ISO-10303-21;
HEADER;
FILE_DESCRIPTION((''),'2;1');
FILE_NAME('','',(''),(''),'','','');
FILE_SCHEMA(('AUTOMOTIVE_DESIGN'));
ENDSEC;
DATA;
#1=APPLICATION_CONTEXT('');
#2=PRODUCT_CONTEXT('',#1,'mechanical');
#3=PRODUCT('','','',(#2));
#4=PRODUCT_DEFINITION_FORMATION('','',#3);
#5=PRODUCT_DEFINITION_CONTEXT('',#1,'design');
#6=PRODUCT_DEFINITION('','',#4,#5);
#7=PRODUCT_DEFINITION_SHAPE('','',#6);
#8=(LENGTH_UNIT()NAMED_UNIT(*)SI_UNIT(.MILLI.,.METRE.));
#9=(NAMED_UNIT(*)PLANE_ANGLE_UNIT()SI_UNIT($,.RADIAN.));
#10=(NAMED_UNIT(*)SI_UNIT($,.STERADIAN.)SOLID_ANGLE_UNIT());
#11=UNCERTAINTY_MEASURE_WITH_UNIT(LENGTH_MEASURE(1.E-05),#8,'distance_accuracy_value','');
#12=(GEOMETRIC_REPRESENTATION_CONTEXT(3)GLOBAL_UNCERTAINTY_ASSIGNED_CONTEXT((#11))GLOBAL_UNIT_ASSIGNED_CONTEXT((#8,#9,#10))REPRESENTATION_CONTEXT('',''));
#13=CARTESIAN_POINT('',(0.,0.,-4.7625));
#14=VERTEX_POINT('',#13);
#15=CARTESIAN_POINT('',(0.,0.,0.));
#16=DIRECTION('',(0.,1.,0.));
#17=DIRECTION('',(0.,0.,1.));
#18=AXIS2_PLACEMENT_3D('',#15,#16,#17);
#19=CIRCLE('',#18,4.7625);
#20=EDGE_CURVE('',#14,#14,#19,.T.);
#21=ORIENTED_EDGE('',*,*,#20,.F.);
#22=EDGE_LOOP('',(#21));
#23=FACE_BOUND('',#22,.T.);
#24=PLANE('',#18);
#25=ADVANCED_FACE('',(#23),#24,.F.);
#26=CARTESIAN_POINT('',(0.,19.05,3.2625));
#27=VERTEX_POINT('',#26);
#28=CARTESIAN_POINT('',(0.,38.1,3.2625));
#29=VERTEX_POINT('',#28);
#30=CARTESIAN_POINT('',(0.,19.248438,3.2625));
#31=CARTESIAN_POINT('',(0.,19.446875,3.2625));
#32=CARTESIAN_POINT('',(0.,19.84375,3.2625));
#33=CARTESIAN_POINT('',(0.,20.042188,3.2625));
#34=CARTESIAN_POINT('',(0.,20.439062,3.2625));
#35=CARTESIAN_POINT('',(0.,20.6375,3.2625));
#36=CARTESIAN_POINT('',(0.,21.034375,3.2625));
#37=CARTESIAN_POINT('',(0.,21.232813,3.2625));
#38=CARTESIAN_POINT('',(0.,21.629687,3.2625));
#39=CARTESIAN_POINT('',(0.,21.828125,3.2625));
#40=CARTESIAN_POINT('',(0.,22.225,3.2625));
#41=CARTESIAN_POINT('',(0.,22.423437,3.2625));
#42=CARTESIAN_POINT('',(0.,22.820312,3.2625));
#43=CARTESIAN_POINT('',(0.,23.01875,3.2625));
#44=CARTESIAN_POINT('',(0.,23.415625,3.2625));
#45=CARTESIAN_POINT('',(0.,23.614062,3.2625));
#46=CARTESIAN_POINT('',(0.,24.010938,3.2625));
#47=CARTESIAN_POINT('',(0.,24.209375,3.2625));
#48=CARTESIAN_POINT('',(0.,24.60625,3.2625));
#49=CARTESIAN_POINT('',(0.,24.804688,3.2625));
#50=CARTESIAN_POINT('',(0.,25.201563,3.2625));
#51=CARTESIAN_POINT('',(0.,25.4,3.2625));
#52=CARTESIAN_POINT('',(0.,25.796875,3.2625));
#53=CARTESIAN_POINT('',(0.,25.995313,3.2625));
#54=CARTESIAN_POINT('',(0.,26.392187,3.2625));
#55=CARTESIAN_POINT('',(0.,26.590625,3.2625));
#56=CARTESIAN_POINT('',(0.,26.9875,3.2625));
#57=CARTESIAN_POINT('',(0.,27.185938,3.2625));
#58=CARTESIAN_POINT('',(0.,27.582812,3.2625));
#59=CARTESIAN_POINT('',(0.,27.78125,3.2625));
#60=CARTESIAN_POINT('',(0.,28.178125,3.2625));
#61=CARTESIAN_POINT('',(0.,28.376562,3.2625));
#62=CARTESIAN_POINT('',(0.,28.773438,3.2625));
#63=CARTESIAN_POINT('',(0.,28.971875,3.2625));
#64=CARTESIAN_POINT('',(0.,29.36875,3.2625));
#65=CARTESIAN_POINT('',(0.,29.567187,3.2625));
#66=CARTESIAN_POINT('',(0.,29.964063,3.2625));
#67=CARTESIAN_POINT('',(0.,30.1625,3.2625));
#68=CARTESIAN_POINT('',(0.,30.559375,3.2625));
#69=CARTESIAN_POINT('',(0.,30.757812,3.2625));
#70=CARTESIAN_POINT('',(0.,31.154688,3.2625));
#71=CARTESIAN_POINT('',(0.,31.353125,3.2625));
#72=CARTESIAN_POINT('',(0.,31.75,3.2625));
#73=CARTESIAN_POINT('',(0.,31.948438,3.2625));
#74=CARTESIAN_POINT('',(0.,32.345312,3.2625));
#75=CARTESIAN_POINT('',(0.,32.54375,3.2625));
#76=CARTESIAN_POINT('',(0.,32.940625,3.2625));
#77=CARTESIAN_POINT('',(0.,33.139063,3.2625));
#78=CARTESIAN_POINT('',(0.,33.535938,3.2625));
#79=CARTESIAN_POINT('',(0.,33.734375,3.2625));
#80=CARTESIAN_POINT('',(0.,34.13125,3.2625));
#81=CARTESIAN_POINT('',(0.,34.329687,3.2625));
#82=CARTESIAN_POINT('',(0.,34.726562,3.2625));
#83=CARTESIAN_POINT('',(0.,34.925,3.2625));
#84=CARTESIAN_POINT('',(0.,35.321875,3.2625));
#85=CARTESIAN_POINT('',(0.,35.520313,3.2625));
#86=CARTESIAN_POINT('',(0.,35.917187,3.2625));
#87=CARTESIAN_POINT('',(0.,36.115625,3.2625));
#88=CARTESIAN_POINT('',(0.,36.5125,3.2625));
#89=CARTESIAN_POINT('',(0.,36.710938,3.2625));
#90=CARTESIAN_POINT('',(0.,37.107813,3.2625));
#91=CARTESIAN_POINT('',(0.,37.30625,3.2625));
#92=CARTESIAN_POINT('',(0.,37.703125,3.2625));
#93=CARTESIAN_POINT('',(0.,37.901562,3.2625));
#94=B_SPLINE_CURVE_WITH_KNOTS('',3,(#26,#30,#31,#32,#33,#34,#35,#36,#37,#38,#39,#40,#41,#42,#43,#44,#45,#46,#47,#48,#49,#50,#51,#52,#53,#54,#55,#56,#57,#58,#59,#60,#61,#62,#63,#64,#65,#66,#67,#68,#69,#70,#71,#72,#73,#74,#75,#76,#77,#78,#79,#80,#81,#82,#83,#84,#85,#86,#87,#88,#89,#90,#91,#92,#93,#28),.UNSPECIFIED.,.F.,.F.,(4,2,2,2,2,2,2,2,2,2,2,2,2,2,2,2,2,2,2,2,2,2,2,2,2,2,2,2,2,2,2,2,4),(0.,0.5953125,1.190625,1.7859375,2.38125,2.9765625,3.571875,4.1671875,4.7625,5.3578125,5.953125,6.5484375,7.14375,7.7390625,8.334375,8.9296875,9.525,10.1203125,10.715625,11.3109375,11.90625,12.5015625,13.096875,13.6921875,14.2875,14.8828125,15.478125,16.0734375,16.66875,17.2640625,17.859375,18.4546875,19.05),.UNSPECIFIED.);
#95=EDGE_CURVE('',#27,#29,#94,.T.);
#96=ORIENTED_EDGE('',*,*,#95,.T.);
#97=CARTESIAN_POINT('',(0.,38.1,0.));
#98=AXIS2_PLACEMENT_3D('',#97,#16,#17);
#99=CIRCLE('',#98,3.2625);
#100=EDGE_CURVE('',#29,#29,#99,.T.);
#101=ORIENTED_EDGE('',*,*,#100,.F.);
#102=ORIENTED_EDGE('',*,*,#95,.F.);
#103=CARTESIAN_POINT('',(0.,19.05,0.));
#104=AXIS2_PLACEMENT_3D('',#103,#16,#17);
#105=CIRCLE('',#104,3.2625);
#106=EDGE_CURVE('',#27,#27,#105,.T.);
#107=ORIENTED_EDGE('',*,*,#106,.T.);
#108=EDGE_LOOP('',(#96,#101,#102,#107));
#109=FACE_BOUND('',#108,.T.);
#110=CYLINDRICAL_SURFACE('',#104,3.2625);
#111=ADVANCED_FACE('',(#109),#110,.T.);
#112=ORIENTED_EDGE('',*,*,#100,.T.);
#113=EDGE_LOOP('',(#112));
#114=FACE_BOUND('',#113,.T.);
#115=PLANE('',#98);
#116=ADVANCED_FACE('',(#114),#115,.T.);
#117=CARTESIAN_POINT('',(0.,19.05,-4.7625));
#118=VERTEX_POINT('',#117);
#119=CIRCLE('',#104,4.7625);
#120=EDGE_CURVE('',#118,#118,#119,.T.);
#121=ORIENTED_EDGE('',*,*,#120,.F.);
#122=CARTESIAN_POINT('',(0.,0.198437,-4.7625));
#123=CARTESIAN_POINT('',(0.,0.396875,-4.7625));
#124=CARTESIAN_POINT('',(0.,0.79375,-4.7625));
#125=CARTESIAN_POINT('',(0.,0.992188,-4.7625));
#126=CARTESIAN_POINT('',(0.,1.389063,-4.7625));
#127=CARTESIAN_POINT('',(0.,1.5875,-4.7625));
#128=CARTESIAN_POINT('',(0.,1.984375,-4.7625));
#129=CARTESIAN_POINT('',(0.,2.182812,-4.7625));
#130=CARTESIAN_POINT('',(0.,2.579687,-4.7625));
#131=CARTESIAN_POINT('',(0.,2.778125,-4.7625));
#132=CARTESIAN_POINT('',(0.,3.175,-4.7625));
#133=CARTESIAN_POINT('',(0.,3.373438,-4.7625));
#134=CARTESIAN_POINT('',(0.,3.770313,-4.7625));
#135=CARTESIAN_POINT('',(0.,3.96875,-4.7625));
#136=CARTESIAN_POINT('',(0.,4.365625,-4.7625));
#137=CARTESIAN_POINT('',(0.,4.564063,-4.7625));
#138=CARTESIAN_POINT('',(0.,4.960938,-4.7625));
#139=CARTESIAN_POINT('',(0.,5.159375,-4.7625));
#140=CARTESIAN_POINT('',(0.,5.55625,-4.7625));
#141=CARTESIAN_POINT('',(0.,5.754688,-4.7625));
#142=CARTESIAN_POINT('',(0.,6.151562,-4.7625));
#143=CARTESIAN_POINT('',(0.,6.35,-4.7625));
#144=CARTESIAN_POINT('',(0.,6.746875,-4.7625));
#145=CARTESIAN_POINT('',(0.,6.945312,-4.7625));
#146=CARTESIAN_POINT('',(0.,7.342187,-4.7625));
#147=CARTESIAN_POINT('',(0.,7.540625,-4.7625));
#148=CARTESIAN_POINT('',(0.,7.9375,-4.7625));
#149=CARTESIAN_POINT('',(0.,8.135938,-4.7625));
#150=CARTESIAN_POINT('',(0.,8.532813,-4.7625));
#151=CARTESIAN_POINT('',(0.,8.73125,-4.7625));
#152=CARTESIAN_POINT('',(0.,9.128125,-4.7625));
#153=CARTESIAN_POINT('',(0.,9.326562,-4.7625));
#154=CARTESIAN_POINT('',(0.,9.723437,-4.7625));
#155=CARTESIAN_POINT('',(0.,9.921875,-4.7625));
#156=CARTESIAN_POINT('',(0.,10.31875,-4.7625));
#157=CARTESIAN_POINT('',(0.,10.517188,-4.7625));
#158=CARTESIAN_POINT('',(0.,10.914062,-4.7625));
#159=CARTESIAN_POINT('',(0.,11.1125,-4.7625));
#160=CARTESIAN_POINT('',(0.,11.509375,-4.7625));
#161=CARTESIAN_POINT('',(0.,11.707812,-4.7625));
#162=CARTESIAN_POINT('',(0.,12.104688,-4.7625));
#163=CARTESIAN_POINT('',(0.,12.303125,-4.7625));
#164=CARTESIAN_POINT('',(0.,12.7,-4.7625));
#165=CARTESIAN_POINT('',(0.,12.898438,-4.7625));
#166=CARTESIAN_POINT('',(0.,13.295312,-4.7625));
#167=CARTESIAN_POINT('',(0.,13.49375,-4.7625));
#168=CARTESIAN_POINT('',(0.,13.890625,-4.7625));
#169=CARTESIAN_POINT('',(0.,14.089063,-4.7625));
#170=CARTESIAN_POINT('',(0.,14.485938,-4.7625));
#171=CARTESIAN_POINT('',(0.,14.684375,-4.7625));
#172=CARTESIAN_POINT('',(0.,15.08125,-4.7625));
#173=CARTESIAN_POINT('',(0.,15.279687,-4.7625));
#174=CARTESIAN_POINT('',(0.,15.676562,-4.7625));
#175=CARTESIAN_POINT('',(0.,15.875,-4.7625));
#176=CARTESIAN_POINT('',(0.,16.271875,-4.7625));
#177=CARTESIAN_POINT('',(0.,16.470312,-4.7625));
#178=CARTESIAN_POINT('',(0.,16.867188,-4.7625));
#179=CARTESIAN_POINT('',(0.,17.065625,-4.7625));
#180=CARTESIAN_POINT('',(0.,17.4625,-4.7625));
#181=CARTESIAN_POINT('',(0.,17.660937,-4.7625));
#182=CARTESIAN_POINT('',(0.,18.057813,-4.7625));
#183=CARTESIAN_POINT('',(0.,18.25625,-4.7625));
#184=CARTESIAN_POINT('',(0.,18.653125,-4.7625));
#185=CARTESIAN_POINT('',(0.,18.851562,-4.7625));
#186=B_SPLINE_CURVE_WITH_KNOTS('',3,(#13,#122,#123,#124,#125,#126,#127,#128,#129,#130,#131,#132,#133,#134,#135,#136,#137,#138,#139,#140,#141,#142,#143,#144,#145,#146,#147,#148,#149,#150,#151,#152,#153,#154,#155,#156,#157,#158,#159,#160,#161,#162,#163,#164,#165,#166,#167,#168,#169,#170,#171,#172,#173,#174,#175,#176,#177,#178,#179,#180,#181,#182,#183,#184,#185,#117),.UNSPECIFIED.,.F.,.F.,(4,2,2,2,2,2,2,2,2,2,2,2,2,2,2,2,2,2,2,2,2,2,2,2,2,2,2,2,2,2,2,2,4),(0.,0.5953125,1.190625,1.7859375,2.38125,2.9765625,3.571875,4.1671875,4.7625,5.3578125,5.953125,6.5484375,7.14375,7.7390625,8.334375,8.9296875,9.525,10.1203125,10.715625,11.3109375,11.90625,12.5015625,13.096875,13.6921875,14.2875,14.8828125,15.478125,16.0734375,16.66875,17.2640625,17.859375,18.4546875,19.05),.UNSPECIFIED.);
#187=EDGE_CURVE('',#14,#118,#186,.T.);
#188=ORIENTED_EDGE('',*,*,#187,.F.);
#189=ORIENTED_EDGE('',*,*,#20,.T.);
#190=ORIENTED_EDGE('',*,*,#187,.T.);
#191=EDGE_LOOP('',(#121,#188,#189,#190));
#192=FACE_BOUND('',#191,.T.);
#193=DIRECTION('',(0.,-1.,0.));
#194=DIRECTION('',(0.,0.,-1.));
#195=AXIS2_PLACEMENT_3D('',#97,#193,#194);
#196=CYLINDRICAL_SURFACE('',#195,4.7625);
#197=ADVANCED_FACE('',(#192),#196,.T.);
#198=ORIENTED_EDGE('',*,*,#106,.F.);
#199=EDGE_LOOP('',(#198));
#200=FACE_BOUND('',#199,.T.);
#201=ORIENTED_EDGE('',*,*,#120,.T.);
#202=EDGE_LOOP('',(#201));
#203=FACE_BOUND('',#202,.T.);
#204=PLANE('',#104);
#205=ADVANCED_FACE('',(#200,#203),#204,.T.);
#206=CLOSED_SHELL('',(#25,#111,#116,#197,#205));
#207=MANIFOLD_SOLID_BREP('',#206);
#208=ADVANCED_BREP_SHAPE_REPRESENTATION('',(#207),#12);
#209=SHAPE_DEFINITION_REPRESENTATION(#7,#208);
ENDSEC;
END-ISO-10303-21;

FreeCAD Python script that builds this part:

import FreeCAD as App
import Part
import Sketcher
Q = App.Units.Quantity

doc = App.newDocument("Part")
body = doc.addObject("PartDesign::Body", "Body")

sketch1 = body.newObject("Sketcher::SketchObject", "Sketch")
sketch1.AttachmentSupport = (doc.getObject("XZ_Plane"), [""])
sketch1.MapMode = "FlatFace"
sketch1.addGeometry(Part.Circle(App.Vector(0, 0, 0), App.Vector(0, 0, 1), 4.8), False)
sketch1.addConstraint(Sketcher.Constraint("Coincident", 0, 3, -1, 1))
sketch1.addConstraint(Sketcher.Constraint("Diameter", 0, Q("0.375 in")))
pad1 = body.newObject("PartDesign::Pad", "Pad")
pad1.Profile = sketch1
pad1.Length = Q("1.5 in")
pad1.Reversed = True

sketch2 = body.newObject("Sketcher::SketchObject", "Sketch001")
sketch2.AttachmentSupport = (doc.getObject("XZ_Plane"), [""])
sketch2.MapMode = "FlatFace"
sketch2.AttachmentOffset = App.Placement(App.Vector(0, 0, -1.5 * 25.4), App.Rotation())
sketch2.addGeometry(Part.Circle(App.Vector(0, 0, 0), App.Vector(0, 0, 1), 5.6), False)
sketch2.addGeometry(Part.Circle(App.Vector(0, 0, 0), App.Vector(0, 0, 1), 3.3), False)
sketch2.addConstraint(Sketcher.Constraint("Coincident", 0, 3, -1, 1))
sketch2.addConstraint(Sketcher.Constraint("Coincident", 1, 3, -1, 1))
sketch2.addConstraint(Sketcher.Constraint("Diameter", 1, Q("6.525 mm")))
sketch2.addConstraint(Sketcher.Constraint("Diameter", 0, Q("11.135836 mm")))
pocket1 = body.newObject("PartDesign::Pocket", "Pocket")
pocket1.Profile = sketch2
pocket1.Length = Q("0.75 in")
pocket1.Reversed = True

doc.recompute()
